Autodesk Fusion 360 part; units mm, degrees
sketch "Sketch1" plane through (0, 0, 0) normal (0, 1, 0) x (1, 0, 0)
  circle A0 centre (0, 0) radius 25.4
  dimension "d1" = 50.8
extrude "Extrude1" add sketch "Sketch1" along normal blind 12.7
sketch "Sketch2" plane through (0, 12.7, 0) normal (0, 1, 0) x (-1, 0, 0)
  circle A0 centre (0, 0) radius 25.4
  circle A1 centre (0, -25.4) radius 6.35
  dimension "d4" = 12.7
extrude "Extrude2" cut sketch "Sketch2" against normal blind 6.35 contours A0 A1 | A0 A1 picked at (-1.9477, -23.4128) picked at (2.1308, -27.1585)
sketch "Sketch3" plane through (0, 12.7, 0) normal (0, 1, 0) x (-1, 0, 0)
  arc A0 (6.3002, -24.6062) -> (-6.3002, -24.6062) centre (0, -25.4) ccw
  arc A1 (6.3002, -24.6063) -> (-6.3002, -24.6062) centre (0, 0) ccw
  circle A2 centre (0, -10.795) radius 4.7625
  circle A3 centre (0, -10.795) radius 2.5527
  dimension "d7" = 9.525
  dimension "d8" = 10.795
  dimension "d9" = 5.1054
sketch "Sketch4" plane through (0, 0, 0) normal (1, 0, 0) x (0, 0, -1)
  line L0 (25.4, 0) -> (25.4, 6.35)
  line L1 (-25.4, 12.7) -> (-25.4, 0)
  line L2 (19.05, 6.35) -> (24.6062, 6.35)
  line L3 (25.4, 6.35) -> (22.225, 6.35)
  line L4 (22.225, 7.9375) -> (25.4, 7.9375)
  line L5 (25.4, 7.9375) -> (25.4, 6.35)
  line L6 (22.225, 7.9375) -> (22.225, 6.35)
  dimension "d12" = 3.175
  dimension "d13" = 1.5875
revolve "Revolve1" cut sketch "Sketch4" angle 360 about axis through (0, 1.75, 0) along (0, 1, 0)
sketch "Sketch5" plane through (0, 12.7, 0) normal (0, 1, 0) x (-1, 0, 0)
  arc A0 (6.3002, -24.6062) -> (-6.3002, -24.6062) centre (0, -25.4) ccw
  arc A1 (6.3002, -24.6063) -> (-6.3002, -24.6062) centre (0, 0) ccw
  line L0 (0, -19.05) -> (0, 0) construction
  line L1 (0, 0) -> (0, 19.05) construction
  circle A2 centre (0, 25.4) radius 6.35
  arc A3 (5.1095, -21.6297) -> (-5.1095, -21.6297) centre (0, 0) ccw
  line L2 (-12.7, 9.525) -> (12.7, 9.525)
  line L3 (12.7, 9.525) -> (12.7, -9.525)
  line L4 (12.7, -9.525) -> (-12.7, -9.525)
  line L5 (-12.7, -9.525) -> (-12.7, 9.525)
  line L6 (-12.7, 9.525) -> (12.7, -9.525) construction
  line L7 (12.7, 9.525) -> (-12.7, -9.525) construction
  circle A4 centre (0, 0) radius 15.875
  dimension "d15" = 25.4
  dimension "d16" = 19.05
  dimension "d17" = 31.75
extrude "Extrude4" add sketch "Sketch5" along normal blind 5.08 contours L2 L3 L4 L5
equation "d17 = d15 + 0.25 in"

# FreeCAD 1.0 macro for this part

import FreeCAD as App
import Part
import Sketcher
from FreeCAD import Vector
Q = App.Units.Quantity


def add_polygon(sketch, points):
    """Adds a closed chain of lines whose ends are joined by coincident constraints."""
    first, n = sketch.GeometryCount, len(points)
    for a, b in zip(points, points[1:] + points[:1]):
        sketch.addGeometry(Part.LineSegment(App.Vector(*a, 0), App.Vector(*b, 0)), False)
    for i in range(n):
        sketch.addConstraint(Sketcher.Constraint("Coincident", first + i, 2, first + (i + 1) % n, 1))

doc = App.newDocument("Part")
body = doc.addObject("PartDesign::Body", "Body")

# Sketch on XZ plane
sketch1 = doc.addObject("Sketcher::SketchObject", "Sketch")
body.addObject(sketch1)
sketch1.AttachmentSupport = (doc.XZ_Plane, [""])
sketch1.MapMode = "FlatFace"
sketch1.addGeometry(Part.Circle(Vector(0, 0, 0), Vector(0, 0, 1), 25), False)
sketch1.addConstraint(Sketcher.Constraint("Coincident", 0, 3, -1, 1))
sketch1.addConstraint(Sketcher.Constraint("Diameter", 0, Q("2 in")))
pad1 = doc.addObject("PartDesign::Pad", "Pad")
body.addObject(pad1)
pad1.Profile = sketch1
pad1.Length = Q("0.5 in")
pad1.Reversed = True

# Sketch on XZ plane
sketch2 = doc.addObject("Sketcher::SketchObject", "Sketch001")
body.addObject(sketch2)
sketch2.AttachmentSupport = (doc.XZ_Plane, [""])
sketch2.MapMode = "FlatFace"
sketch2.AttachmentOffset = App.Placement(Vector(0, 0, -0.5 * 25.4), App.Rotation())
sketch2.addGeometry(Part.Circle(Vector(0, -25, 0), Vector(0, 0, 1), 6), False)
sketch2.addConstraint(Sketcher.Constraint("PointOnObject", 0, 3, -2))
sketch2.addConstraint(Sketcher.Constraint("Diameter", 0, Q("0.5 in")))
sketch2.addConstraint(Sketcher.Constraint("DistanceY", 0, 3, -1, 1, Q("1 in")))
pocket1 = doc.addObject("PartDesign::Pocket", "Pocket")
body.addObject(pocket1)
pocket1.Profile = sketch2
pocket1.Length = Q("0.25 in")
pocket1.Reversed = True

# Sketch on YZ plane
sketch3 = doc.addObject("Sketcher::SketchObject", "Sketch002")
body.addObject(sketch3)
sketch3.AttachmentSupport = (doc.YZ_Plane, [""])
sketch3.MapMode = "FlatFace"
add_polygon(sketch3, [(7.9, -22.2), (6.3, -22.2), (6.3, -25.4), (7.9, -25.4)])  # lines 0-3
sketch3.addConstraint(Sketcher.Constraint("Horizontal", 0))
sketch3.addConstraint(Sketcher.Constraint("Vertical", 1))
sketch3.addConstraint(Sketcher.Constraint("Horizontal", 2))
sketch3.addConstraint(Sketcher.Constraint("Vertical", 3))
sketch3.addConstraint(Sketcher.Constraint("DistanceX", 0, 2, 0, 1, Q("0.0625 in")))
sketch3.addConstraint(Sketcher.Constraint("DistanceY", 1, 2, 1, 1, Q("0.125 in")))
sketch3.addConstraint(Sketcher.Constraint("DistanceY", 1, 2, -1, 1, Q("1 in")))
sketch3.addConstraint(Sketcher.Constraint("DistanceX", -1, 1, 0, 2, Q("0.25 in")))
groove = doc.addObject("PartDesign::Groove", "Groove")
body.addObject(groove)
groove.Profile = sketch3
groove.ReferenceAxis = (sketch3, ["H_Axis"])
groove.Angle = 360

# Sketch on XZ plane
sketch4 = doc.addObject("Sketcher::SketchObject", "Sketch003")
body.addObject(sketch4)
sketch4.AttachmentSupport = (doc.XZ_Plane, [""])
sketch4.MapMode = "FlatFace"
sketch4.AttachmentOffset = App.Placement(Vector(0, 0, -0.5 * 25.4), App.Rotation())
add_polygon(sketch4, [(-13, 10), (13, 10), (13, -10), (-13, -10)])  # lines 0-3
sketch4.addConstraint(Sketcher.Constraint("Horizontal", 0))
sketch4.addConstraint(Sketcher.Constraint("Vertical", 1))
sketch4.addConstraint(Sketcher.Constraint("Horizontal", 2))
sketch4.addConstraint(Sketcher.Constraint("Vertical", 3))
sketch4.addConstraint(Sketcher.Constraint("Symmetric", 0, 2, 2, 2, -1, 1))
sketch4.addConstraint(Sketcher.Constraint("DistanceX", 0, 1, 0, 2, Q("1 in")))
sketch4.addConstraint(Sketcher.Constraint("DistanceY", 1, 2, 1, 1, Q("0.75 in")))
pad2 = doc.addObject("PartDesign::Pad", "Pad001")
body.addObject(pad2)
pad2.Profile = sketch4
pad2.Length = Q("0.2 in")
pad2.Reversed = True

doc.recompute()
